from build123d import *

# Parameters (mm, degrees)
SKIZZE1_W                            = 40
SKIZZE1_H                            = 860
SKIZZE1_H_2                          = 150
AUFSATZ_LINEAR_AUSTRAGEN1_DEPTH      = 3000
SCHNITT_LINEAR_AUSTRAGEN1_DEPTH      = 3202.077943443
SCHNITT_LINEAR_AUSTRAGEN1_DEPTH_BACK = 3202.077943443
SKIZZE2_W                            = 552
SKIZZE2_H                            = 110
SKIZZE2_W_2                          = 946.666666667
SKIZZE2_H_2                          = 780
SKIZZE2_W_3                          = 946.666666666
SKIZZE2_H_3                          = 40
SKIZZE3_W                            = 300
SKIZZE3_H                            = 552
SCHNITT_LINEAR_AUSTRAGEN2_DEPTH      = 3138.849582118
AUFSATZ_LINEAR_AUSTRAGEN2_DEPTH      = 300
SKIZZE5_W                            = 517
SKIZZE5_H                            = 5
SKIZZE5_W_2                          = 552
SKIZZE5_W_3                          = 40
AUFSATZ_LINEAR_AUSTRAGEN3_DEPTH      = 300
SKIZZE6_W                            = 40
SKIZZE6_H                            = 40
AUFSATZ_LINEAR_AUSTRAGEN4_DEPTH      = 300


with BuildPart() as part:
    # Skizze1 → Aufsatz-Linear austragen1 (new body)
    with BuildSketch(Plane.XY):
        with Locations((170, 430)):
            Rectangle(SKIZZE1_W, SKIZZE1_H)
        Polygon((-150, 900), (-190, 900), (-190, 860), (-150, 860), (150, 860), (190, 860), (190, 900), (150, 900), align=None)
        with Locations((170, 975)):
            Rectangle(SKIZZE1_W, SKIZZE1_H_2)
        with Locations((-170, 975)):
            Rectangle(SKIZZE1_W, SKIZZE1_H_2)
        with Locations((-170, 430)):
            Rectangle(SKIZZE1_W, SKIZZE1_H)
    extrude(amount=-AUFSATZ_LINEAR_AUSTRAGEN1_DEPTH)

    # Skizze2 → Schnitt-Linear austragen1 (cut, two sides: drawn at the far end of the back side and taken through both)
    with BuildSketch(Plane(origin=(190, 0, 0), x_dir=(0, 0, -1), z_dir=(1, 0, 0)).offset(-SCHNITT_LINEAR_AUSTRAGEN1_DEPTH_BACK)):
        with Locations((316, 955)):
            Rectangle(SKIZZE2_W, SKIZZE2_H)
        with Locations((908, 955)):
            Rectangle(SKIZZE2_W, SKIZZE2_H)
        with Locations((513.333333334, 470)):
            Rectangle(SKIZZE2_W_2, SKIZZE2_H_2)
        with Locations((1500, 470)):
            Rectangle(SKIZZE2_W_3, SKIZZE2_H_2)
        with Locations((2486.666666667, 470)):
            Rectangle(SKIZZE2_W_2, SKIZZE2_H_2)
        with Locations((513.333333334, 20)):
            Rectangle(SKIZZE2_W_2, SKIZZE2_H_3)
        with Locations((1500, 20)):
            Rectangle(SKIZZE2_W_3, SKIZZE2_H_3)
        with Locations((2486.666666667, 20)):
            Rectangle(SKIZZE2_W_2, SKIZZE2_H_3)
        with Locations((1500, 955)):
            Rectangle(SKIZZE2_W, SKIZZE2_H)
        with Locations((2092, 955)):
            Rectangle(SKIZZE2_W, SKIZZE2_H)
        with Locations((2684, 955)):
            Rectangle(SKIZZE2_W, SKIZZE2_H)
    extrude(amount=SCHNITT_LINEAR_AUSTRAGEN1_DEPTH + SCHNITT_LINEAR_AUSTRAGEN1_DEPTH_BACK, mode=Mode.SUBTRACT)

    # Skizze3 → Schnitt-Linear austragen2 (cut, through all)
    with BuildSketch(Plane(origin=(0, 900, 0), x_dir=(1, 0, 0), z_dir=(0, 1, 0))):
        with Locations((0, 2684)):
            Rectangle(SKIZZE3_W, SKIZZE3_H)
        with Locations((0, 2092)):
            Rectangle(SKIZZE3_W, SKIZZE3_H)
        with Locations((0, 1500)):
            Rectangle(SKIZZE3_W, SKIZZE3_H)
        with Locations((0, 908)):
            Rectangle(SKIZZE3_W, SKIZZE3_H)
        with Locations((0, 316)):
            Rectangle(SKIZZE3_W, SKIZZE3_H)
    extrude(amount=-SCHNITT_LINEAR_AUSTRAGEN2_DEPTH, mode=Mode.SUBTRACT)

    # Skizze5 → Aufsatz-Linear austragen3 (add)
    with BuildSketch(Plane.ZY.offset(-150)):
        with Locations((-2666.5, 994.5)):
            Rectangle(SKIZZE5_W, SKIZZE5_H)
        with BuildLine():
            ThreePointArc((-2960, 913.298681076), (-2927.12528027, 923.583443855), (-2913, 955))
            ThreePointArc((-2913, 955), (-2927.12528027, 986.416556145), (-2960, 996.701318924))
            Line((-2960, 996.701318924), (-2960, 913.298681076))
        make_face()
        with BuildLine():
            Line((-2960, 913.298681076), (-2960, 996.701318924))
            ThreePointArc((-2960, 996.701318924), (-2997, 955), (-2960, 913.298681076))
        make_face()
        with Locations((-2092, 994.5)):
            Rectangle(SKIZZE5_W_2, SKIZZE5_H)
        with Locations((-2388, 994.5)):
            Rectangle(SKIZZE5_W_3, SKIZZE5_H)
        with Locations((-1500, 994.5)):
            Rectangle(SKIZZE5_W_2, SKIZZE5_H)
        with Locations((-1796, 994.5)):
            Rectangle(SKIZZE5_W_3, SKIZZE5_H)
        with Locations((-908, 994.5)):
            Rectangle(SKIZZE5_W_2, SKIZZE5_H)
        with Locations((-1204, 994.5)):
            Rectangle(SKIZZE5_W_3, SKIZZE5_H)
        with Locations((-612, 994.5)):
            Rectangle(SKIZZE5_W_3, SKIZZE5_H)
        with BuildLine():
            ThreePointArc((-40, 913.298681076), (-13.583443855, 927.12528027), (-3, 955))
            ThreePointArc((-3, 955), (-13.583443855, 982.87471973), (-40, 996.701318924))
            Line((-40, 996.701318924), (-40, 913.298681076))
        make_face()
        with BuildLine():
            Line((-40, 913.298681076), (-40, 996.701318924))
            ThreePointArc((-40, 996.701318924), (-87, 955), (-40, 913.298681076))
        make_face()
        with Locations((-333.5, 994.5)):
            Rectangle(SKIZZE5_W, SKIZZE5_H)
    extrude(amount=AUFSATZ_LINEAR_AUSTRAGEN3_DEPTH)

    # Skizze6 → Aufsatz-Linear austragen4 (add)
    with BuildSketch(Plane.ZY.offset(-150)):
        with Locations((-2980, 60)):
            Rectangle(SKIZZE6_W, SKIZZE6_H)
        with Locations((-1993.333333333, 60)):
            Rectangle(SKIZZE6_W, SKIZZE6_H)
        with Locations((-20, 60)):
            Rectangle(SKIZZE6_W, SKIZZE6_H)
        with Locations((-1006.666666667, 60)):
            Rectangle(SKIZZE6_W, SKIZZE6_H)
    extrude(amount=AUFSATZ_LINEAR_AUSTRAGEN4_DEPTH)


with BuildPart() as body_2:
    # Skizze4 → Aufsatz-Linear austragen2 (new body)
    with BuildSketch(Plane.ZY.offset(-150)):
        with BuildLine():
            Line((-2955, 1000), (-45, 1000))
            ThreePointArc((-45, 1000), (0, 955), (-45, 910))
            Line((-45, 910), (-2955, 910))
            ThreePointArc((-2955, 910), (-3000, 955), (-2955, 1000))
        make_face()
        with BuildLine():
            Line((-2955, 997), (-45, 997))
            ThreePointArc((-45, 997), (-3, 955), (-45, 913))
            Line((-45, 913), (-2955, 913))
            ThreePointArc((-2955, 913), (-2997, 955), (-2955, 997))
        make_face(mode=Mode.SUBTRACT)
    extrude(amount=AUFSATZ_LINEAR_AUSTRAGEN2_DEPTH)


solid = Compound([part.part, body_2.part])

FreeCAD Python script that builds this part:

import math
import FreeCAD as App
import Part
import Sketcher

V = App.Vector

doc = App.newDocument("Part")
body = doc.addObject("PartDesign::Body", "Body")

sketch1 = body.newObject("Sketcher::SketchObject", "Sketch")
sketch1.AttachmentSupport = (doc.getObject("XY_Plane"), [""])
sketch1.MapMode = "FlatFace"
sketch1.addGeometry(Part.LineSegment(V(150, 860, 0), V(150, 0, 0)), False)
sketch1.addGeometry(Part.LineSegment(V(150, 0, 0), V(190, 0, 0)), False)
sketch1.addGeometry(Part.LineSegment(V(190, 0, 0), V(190, 1050, 0)), False)
sketch1.addGeometry(Part.LineSegment(V(190, 1050, 0), V(150, 1050, 0)), False)
sketch1.addGeometry(Part.LineSegment(V(150, 1050, 0), V(150, 900, 0)), False)
sketch1.addGeometry(Part.LineSegment(V(150, 900, 0), V(-150, 900, 0)), False)
sketch1.addGeometry(Part.LineSegment(V(-150, 900, 0), V(-150, 1050, 0)), False)
sketch1.addGeometry(Part.LineSegment(V(-150, 1050, 0), V(-190, 1050, 0)), False)
sketch1.addGeometry(Part.LineSegment(V(-190, 1050, 0), V(-190, 0, 0)), False)
sketch1.addGeometry(Part.LineSegment(V(-190, 0, 0), V(-150, 0, 0)), False)
sketch1.addGeometry(Part.LineSegment(V(-150, 0, 0), V(-150, 860, 0)), False)
sketch1.addGeometry(Part.LineSegment(V(-150, 860, 0), V(150, 860, 0)), False)
sketch1.addConstraint(Sketcher.Constraint("Coincident", 0, 2, 1, 1))
sketch1.addConstraint(Sketcher.Constraint("Coincident", 1, 2, 2, 1))
sketch1.addConstraint(Sketcher.Constraint("Coincident", 2, 2, 3, 1))
sketch1.addConstraint(Sketcher.Constraint("Coincident", 3, 2, 4, 1))
sketch1.addConstraint(Sketcher.Constraint("Coincident", 4, 2, 5, 1))
sketch1.addConstraint(Sketcher.Constraint("Coincident", 5, 2, 6, 1))
sketch1.addConstraint(Sketcher.Constraint("Coincident", 6, 2, 7, 1))
sketch1.addConstraint(Sketcher.Constraint("Coincident", 7, 2, 8, 1))
sketch1.addConstraint(Sketcher.Constraint("Coincident", 8, 2, 9, 1))
sketch1.addConstraint(Sketcher.Constraint("Coincident", 9, 2, 10, 1))
sketch1.addConstraint(Sketcher.Constraint("Coincident", 10, 2, 11, 1))
sketch1.addConstraint(Sketcher.Constraint("Coincident", 11, 2, 0, 1))
sketch1.addConstraint(Sketcher.Constraint("Vertical", 0))
sketch1.addConstraint(Sketcher.Constraint("Horizontal", 1))
sketch1.addConstraint(Sketcher.Constraint("Vertical", 2))
sketch1.addConstraint(Sketcher.Constraint("Horizontal", 3))
sketch1.addConstraint(Sketcher.Constraint("Vertical", 4))
sketch1.addConstraint(Sketcher.Constraint("Horizontal", 5))
sketch1.addConstraint(Sketcher.Constraint("Vertical", 6))
sketch1.addConstraint(Sketcher.Constraint("Horizontal", 7))
sketch1.addConstraint(Sketcher.Constraint("Vertical", 8))
sketch1.addConstraint(Sketcher.Constraint("Horizontal", 9))
sketch1.addConstraint(Sketcher.Constraint("Vertical", 10))
sketch1.addConstraint(Sketcher.Constraint("Horizontal", 11))
sketch1.addConstraint(Sketcher.Constraint("Symmetric", 1, 2, 8, 2, -1, 1))
sketch1.addConstraint(Sketcher.Constraint("Symmetric", 3, 2, 6, 2, -2))
sketch1.addConstraint(Sketcher.Constraint("Symmetric", 0, 2, 9, 2, -2))
sketch1.addConstraint(Sketcher.Constraint("Vertical", 0, 2, 3, 2))
sketch1.addConstraint(Sketcher.Constraint("DistanceX", 1, 1, 1, 2, 40.0))
sketch1.addConstraint(Sketcher.Constraint("DistanceX", 5, 2, 5, 1, 300.0))
sketch1.addConstraint(Sketcher.Constraint("DistanceY", 0, 2, 0, 1, 860.0))
sketch1.addConstraint(Sketcher.Constraint("DistanceY", 2, 1, 2, 2, 1050.0))
sketch1.addConstraint(Sketcher.Constraint("DistanceY", 4, 2, 4, 1, 150.0))
pad1 = body.newObject("PartDesign::Pad", "Pad")
pad1.Profile = sketch1
pad1.Length = 3000
pad1.Reversed = True

sketch2 = body.newObject("Sketcher::SketchObject", "Sketch001")
sketch2.AttachmentSupport = (doc.getObject("YZ_Plane"), [""])
sketch2.MapMode = "FlatFace"
sketch2.AttachmentOffset = App.Placement(V(0, 0, 190), App.Rotation())
sketch2.addGeometry(Part.LineSegment(V(1010, -40, 0), V(900, -40, 0)), False)
sketch2.addGeometry(Part.LineSegment(V(900, -40, 0), V(900, -592, 0)), False)
sketch2.addGeometry(Part.LineSegment(V(900, -592, 0), V(1010, -592, 0)), False)
sketch2.addGeometry(Part.LineSegment(V(1010, -592, 0), V(1010, -40, 0)), False)
sketch2.addGeometry(Part.LineSegment(V(1010, -632, 0), V(900, -632, 0)), False)
sketch2.addGeometry(Part.LineSegment(V(900, -632, 0), V(900, -1184, 0)), False)
sketch2.addGeometry(Part.LineSegment(V(900, -1184, 0), V(1010, -1184, 0)), False)
sketch2.addGeometry(Part.LineSegment(V(1010, -1184, 0), V(1010, -632, 0)), False)
sketch2.addGeometry(Part.LineSegment(V(860, -40, 0), V(80, -40, 0)), False)
sketch2.addGeometry(Part.LineSegment(V(80, -40, 0), V(80, -987, 0)), False)
sketch2.addGeometry(Part.LineSegment(V(80, -987, 0), V(860, -987, 0)), False)
sketch2.addGeometry(Part.LineSegment(V(860, -987, 0), V(860, -40, 0)), False)
sketch2.addGeometry(Part.LineSegment(V(860, -1027, 0), V(80, -1027, 0)), False)
sketch2.addGeometry(Part.LineSegment(V(80, -1027, 0), V(80, -1973, 0)), False)
sketch2.addGeometry(Part.LineSegment(V(80, -1973, 0), V(860, -1973, 0)), False)
sketch2.addGeometry(Part.LineSegment(V(860, -1973, 0), V(860, -1027, 0)), False)
sketch2.addGeometry(Part.LineSegment(V(860, -2013, 0), V(80, -2013, 0)), False)
sketch2.addGeometry(Part.LineSegment(V(80, -2013, 0), V(80, -2960, 0)), False)
sketch2.addGeometry(Part.LineSegment(V(80, -2960, 0), V(860, -2960, 0)), False)
sketch2.addGeometry(Part.LineSegment(V(860, -2960, 0), V(860, -2013, 0)), False)
sketch2.addGeometry(Part.LineSegment(V(40, -40, 0), V(0, -40, 0)), False)
sketch2.addGeometry(Part.LineSegment(V(0, -40, 0), V(0, -987, 0)), False)
sketch2.addGeometry(Part.LineSegment(V(0, -987, 0), V(40, -987, 0)), False)
sketch2.addGeometry(Part.LineSegment(V(40, -987, 0), V(40, -40, 0)), False)
sketch2.addGeometry(Part.LineSegment(V(40, -1027, 0), V(0, -1027, 0)), False)
sketch2.addGeometry(Part.LineSegment(V(0, -1027, 0), V(0, -1973, 0)), False)
sketch2.addGeometry(Part.LineSegment(V(0, -1973, 0), V(40, -1973, 0)), False)
sketch2.addGeometry(Part.LineSegment(V(40, -1973, 0), V(40, -1027, 0)), False)
sketch2.addGeometry(Part.LineSegment(V(40, -2013, 0), V(0, -2013, 0)), False)
sketch2.addGeometry(Part.LineSegment(V(0, -2013, 0), V(0, -2960, 0)), False)
sketch2.addGeometry(Part.LineSegment(V(0, -2960, 0), V(40, -2960, 0)), False)
sketch2.addGeometry(Part.LineSegment(V(40, -2960, 0), V(40, -2013, 0)), False)
sketch2.addGeometry(Part.LineSegment(V(1010, -1224, 0), V(900, -1224, 0)), False)
sketch2.addGeometry(Part.LineSegment(V(900, -1224, 0), V(900, -1776, 0)), False)
sketch2.addGeometry(Part.LineSegment(V(900, -1776, 0), V(1010, -1776, 0)), False)
sketch2.addGeometry(Part.LineSegment(V(1010, -1776, 0), V(1010, -1224, 0)), False)
sketch2.addGeometry(Part.LineSegment(V(1010, -1816, 0), V(900, -1816, 0)), False)
sketch2.addGeometry(Part.LineSegment(V(900, -1816, 0), V(900, -2368, 0)), False)
sketch2.addGeometry(Part.LineSegment(V(900, -2368, 0), V(1010, -2368, 0)), False)
sketch2.addGeometry(Part.LineSegment(V(1010, -2368, 0), V(1010, -1816, 0)), False)
sketch2.addGeometry(Part.LineSegment(V(1010, -2408, 0), V(900, -2408, 0)), False)
sketch2.addGeometry(Part.LineSegment(V(900, -2408, 0), V(900, -2960, 0)), False)
sketch2.addGeometry(Part.LineSegment(V(900, -2960, 0), V(1010, -2960, 0)), False)
sketch2.addGeometry(Part.LineSegment(V(1010, -2960, 0), V(1010, -2408, 0)), False)
sketch2.addConstraint(Sketcher.Constraint("Coincident", 0, 2, 1, 1))
sketch2.addConstraint(Sketcher.Constraint("Coincident", 1, 2, 2, 1))
sketch2.addConstraint(Sketcher.Constraint("Coincident", 2, 2, 3, 1))
sketch2.addConstraint(Sketcher.Constraint("Coincident", 3, 2, 0, 1))
sketch2.addConstraint(Sketcher.Constraint("Coincident", 4, 2, 5, 1))
sketch2.addConstraint(Sketcher.Constraint("Coincident", 5, 2, 6, 1))
sketch2.addConstraint(Sketcher.Constraint("Coincident", 6, 2, 7, 1))
sketch2.addConstraint(Sketcher.Constraint("Coincident", 7, 2, 4, 1))
sketch2.addConstraint(Sketcher.Constraint("Coincident", 8, 2, 9, 1))
sketch2.addConstraint(Sketcher.Constraint("Coincident", 9, 2, 10, 1))
sketch2.addConstraint(Sketcher.Constraint("Coincident", 10, 2, 11, 1))
sketch2.addConstraint(Sketcher.Constraint("Coincident", 11, 2, 8, 1))
sketch2.addConstraint(Sketcher.Constraint("Coincident", 12, 2, 13, 1))
sketch2.addConstraint(Sketcher.Constraint("Coincident", 13, 2, 14, 1))
sketch2.addConstraint(Sketcher.Constraint("Coincident", 14, 2, 15, 1))
sketch2.addConstraint(Sketcher.Constraint("Coincident", 15, 2, 12, 1))
sketch2.addConstraint(Sketcher.Constraint("Coincident", 16, 2, 17, 1))
sketch2.addConstraint(Sketcher.Constraint("Coincident", 17, 2, 18, 1))
sketch2.addConstraint(Sketcher.Constraint("Coincident", 18, 2, 19, 1))
sketch2.addConstraint(Sketcher.Constraint("Coincident", 19, 2, 16, 1))
sketch2.addConstraint(Sketcher.Constraint("Coincident", 20, 2, 21, 1))
sketch2.addConstraint(Sketcher.Constraint("Coincident", 21, 2, 22, 1))
sketch2.addConstraint(Sketcher.Constraint("Coincident", 22, 2, 23, 1))
sketch2.addConstraint(Sketcher.Constraint("Coincident", 23, 2, 20, 1))
sketch2.addConstraint(Sketcher.Constraint("Coincident", 24, 2, 25, 1))
sketch2.addConstraint(Sketcher.Constraint("Coincident", 25, 2, 26, 1))
sketch2.addConstraint(Sketcher.Constraint("Coincident", 26, 2, 27, 1))
sketch2.addConstraint(Sketcher.Constraint("Coincident", 27, 2, 24, 1))
sketch2.addConstraint(Sketcher.Constraint("Coincident", 28, 2, 29, 1))
sketch2.addConstraint(Sketcher.Constraint("Coincident", 29, 2, 30, 1))
sketch2.addConstraint(Sketcher.Constraint("Coincident", 30, 2, 31, 1))
sketch2.addConstraint(Sketcher.Constraint("Coincident", 31, 2, 28, 1))
sketch2.addConstraint(Sketcher.Constraint("Coincident", 32, 2, 33, 1))
sketch2.addConstraint(Sketcher.Constraint("Coincident", 33, 2, 34, 1))
sketch2.addConstraint(Sketcher.Constraint("Coincident", 34, 2, 35, 1))
sketch2.addConstraint(Sketcher.Constraint("Coincident", 35, 2, 32, 1))
sketch2.addConstraint(Sketcher.Constraint("Coincident", 36, 2, 37, 1))
sketch2.addConstraint(Sketcher.Constraint("Coincident", 37, 2, 38, 1))
sketch2.addConstraint(Sketcher.Constraint("Coincident", 38, 2, 39, 1))
sketch2.addConstraint(Sketcher.Constraint("Coincident", 39, 2, 36, 1))
sketch2.addConstraint(Sketcher.Constraint("Coincident", 40, 2, 41, 1))
sketch2.addConstraint(Sketcher.Constraint("Coincident", 41, 2, 42, 1))
sketch2.addConstraint(Sketcher.Constraint("Coincident", 42, 2, 43, 1))
sketch2.addConstraint(Sketcher.Constraint("Coincident", 43, 2, 40, 1))
sketch2.addConstraint(Sketcher.Constraint("Horizontal", 0))
sketch2.addConstraint(Sketcher.Constraint("Vertical", 1))
sketch2.addConstraint(Sketcher.Constraint("Horizontal", 2))
sketch2.addConstraint(Sketcher.Constraint("Vertical", 3))
sketch2.addConstraint(Sketcher.Constraint("Horizontal", 4))
sketch2.addConstraint(Sketcher.Constraint("Vertical", 5))
sketch2.addConstraint(Sketcher.Constraint("Horizontal", 6))
sketch2.addConstraint(Sketcher.Constraint("Vertical", 7))
sketch2.addConstraint(Sketcher.Constraint("Horizontal", 8))
sketch2.addConstraint(Sketcher.Constraint("Vertical", 9))
sketch2.addConstraint(Sketcher.Constraint("Horizontal", 10))
sketch2.addConstraint(Sketcher.Constraint("Vertical", 11))
sketch2.addConstraint(Sketcher.Constraint("Horizontal", 12))
sketch2.addConstraint(Sketcher.Constraint("Vertical", 13))
sketch2.addConstraint(Sketcher.Constraint("Horizontal", 14))
sketch2.addConstraint(Sketcher.Constraint("Vertical", 15))
sketch2.addConstraint(Sketcher.Constraint("Horizontal", 16))
sketch2.addConstraint(Sketcher.Constraint("Vertical", 17))
sketch2.addConstraint(Sketcher.Constraint("Horizontal", 18))
sketch2.addConstraint(Sketcher.Constraint("Vertical", 19))
sketch2.addConstraint(Sketcher.Constraint("Horizontal", 20))
sketch2.addConstraint(Sketcher.Constraint("Vertical", 21))
sketch2.addConstraint(Sketcher.Constraint("Horizontal", 22))
sketch2.addConstraint(Sketcher.Constraint("Vertical", 23))
sketch2.addConstraint(Sketcher.Constraint("Horizontal", 24))
sketch2.addConstraint(Sketcher.Constraint("Vertical", 25))
sketch2.addConstraint(Sketcher.Constraint("Horizontal", 26))
sketch2.addConstraint(Sketcher.Constraint("Vertical", 27))
sketch2.addConstraint(Sketcher.Constraint("Horizontal", 28))
sketch2.addConstraint(Sketcher.Constraint("Vertical", 29))
sketch2.addConstraint(Sketcher.Constraint("Horizontal", 30))
sketch2.addConstraint(Sketcher.Constraint("Vertical", 31))
sketch2.addConstraint(Sketcher.Constraint("Horizontal", 32))
sketch2.addConstraint(Sketcher.Constraint("Vertical", 33))
sketch2.addConstraint(Sketcher.Constraint("Horizontal", 34))
sketch2.addConstraint(Sketcher.Constraint("Vertical", 35))
sketch2.addConstraint(Sketcher.Constraint("Horizontal", 36))
sketch2.addConstraint(Sketcher.Constraint("Vertical", 37))
sketch2.addConstraint(Sketcher.Constraint("Horizontal", 38))
sketch2.addConstraint(Sketcher.Constraint("Vertical", 39))
sketch2.addConstraint(Sketcher.Constraint("Horizontal", 40))
sketch2.addConstraint(Sketcher.Constraint("Vertical", 41))
sketch2.addConstraint(Sketcher.Constraint("Horizontal", 42))
sketch2.addConstraint(Sketcher.Constraint("Vertical", 43))
sketch2.addConstraint(Sketcher.Constraint("PointOnObject", 20, 2, -2))
sketch2.addConstraint(Sketcher.Constraint("PointOnObject", 24, 2, -2))
sketch2.addConstraint(Sketcher.Constraint("PointOnObject", 28, 2, -2))
sketch2.addConstraint(Sketcher.Constraint("Horizontal", 3, 2, 8, 2))
sketch2.addConstraint(Sketcher.Constraint("Horizontal", 11, 2, 20, 2))
sketch2.addConstraint(Sketcher.Constraint("Horizontal", 10, 2, 21, 2))
sketch2.addConstraint(Sketcher.Constraint("Horizontal", 15, 2, 24, 2))
sketch2.addConstraint(Sketcher.Constraint("Horizontal", 14, 2, 25, 2))
sketch2.addConstraint(Sketcher.Constraint("Horizontal", 19, 2, 28, 2))
sketch2.addConstraint(Sketcher.Constraint("Horizontal", 18, 2, 29, 2))
sketch2.addConstraint(Sketcher.Constraint("Horizontal", 30, 2, 41, 2))
sketch2.addConstraint(Sketcher.Constraint("Vertical", 1, 2, 4, 2))
sketch2.addConstraint(Sketcher.Constraint("Vertical", 3, 2, 6, 2))
sketch2.addConstraint(Sketcher.Constraint("Vertical", 9, 2, 12, 2))
sketch2.addConstraint(Sketcher.Constraint("Vertical", 11, 2, 14, 2))
sketch2.addConstraint(Sketcher.Constraint("Vertical", 13, 2, 16, 2))
sketch2.addConstraint(Sketcher.Constraint("Vertical", 15, 2, 18, 2))
sketch2.addConstraint(Sketcher.Constraint("Vertical", 23, 2, 26, 2))
sketch2.addConstraint(Sketcher.Constraint("Vertical", 27, 2, 30, 2))
sketch2.addConstraint(Sketcher.Constraint("Vertical", 5, 2, 32, 2))
sketch2.addConstraint(Sketcher.Constraint("Vertical", 7, 2, 34, 2))
sketch2.addConstraint(Sketcher.Constraint("Vertical", 33, 2, 36, 2))
sketch2.addConstraint(Sketcher.Constraint("Vertical", 35, 2, 38, 2))
sketch2.addConstraint(Sketcher.Constraint("Vertical", 37, 2, 40, 2))
sketch2.addConstraint(Sketcher.Constraint("Vertical", 39, 2, 42, 2))
sketch2.addConstraint(Sketcher.Constraint("Equal", 3, 5))
sketch2.addConstraint(Sketcher.Constraint("Equal", 11, 13))
sketch2.addConstraint(Sketcher.Constraint("Equal", 15, 17))
sketch2.addConstraint(Sketcher.Constraint("Equal", 7, 33))
sketch2.addConstraint(Sketcher.Constraint("Equal", 35, 37))
sketch2.addConstraint(Sketcher.Constraint("Equal", 39, 41))
sketch2.addConstraint(Sketcher.Constraint("DistanceX", 0, 2, 0, 1, 110.0))
sketch2.addConstraint(Sketcher.Constraint("DistanceX", 8, 2, 8, 1, 780.0))
sketch2.addConstraint(Sketcher.Constraint("DistanceX", 20, 2, 20, 1, 40.0))
sketch2.addConstraint(Sketcher.Constraint("DistanceY", 1, 2, 1, 1, 552.0))
sketch2.addConstraint(Sketcher.Constraint("DistanceX", -1, 1, 0, 2, 900.0))
sketch2.addConstraint(Sketcher.Constraint("DistanceY", 0, 2, -1, 1, 40.0))
sketch2.addConstraint(Sketcher.Constraint("DistanceY", 4, 2, -1, 1, 632.0))
sketch2.addConstraint(Sketcher.Constraint("DistanceX", -1, 1, 8, 2, 80.0))
sketch2.addConstraint(Sketcher.Constraint("DistanceY", 17, 2, -1, 1, 2960.0))
sketch2.addConstraint(Sketcher.Constraint("DistanceY", 32, 2, -1, 1, 1224.0))
sketch2.addConstraint(Sketcher.Constraint("DistanceY", 36, 2, -1, 1, 1816.0))
sketch2.addConstraint(Sketcher.Constraint("DistanceY", 12, 2, 9, 2, 40.0))
sketch2.addConstraint(Sketcher.Constraint("DistanceY", 16, 2, 13, 2, 40.0))
pocket1 = body.newObject("PartDesign::Pocket", "Pocket")
pocket1.Profile = sketch2
pocket1.Type = "ThroughAll"
pocket1.Midplane = True

sketch3 = body.newObject("Sketcher::SketchObject", "Sketch002")
sketch3.AttachmentSupport = (doc.getObject("XZ_Plane"), [""])
sketch3.MapMode = "FlatFace"
sketch3.AttachmentOffset = App.Placement(V(0, 0, -900), App.Rotation())
sketch3.addGeometry(Part.LineSegment(V(-150, -2960, 0), V(-150, -2408, 0)), False)
sketch3.addGeometry(Part.LineSegment(V(-150, -2408, 0), V(150, -2408, 0)), False)
sketch3.addGeometry(Part.LineSegment(V(150, -2408, 0), V(150, -2960, 0)), False)
sketch3.addGeometry(Part.LineSegment(V(150, -2960, 0), V(-150, -2960, 0)), False)
sketch3.addGeometry(Part.LineSegment(V(-150, -2368, 0), V(-150, -1816, 0)), False)
sketch3.addGeometry(Part.LineSegment(V(-150, -1816, 0), V(150, -1816, 0)), False)
sketch3.addGeometry(Part.LineSegment(V(150, -1816, 0), V(150, -2368, 0)), False)
sketch3.addGeometry(Part.LineSegment(V(150, -2368, 0), V(-150, -2368, 0)), False)
sketch3.addGeometry(Part.LineSegment(V(-150, -1776, 0), V(-150, -1224, 0)), False)
sketch3.addGeometry(Part.LineSegment(V(-150, -1224, 0), V(150, -1224, 0)), False)
sketch3.addGeometry(Part.LineSegment(V(150, -1224, 0), V(150, -1776, 0)), False)
sketch3.addGeometry(Part.LineSegment(V(150, -1776, 0), V(-150, -1776, 0)), False)
sketch3.addGeometry(Part.LineSegment(V(-150, -1184, 0), V(-150, -632, 0)), False)
sketch3.addGeometry(Part.LineSegment(V(-150, -632, 0), V(150, -632, 0)), False)
sketch3.addGeometry(Part.LineSegment(V(150, -632, 0), V(150, -1184, 0)), False)
sketch3.addGeometry(Part.LineSegment(V(150, -1184, 0), V(-150, -1184, 0)), False)
sketch3.addGeometry(Part.LineSegment(V(-150, -592, 0), V(-150, -40, 0)), False)
sketch3.addGeometry(Part.LineSegment(V(-150, -40, 0), V(150, -40, 0)), False)
sketch3.addGeometry(Part.LineSegment(V(150, -40, 0), V(150, -592, 0)), False)
sketch3.addGeometry(Part.LineSegment(V(150, -592, 0), V(-150, -592, 0)), False)
sketch3.addConstraint(Sketcher.Constraint("Coincident", 0, 2, 1, 1))
sketch3.addConstraint(Sketcher.Constraint("Coincident", 1, 2, 2, 1))
sketch3.addConstraint(Sketcher.Constraint("Coincident", 2, 2, 3, 1))
sketch3.addConstraint(Sketcher.Constraint("Coincident", 3, 2, 0, 1))
sketch3.addConstraint(Sketcher.Constraint("Coincident", 4, 2, 5, 1))
sketch3.addConstraint(Sketcher.Constraint("Coincident", 5, 2, 6, 1))
sketch3.addConstraint(Sketcher.Constraint("Coincident", 6, 2, 7, 1))
sketch3.addConstraint(Sketcher.Constraint("Coincident", 7, 2, 4, 1))
sketch3.addConstraint(Sketcher.Constraint("Coincident", 8, 2, 9, 1))
sketch3.addConstraint(Sketcher.Constraint("Coincident", 9, 2, 10, 1))
sketch3.addConstraint(Sketcher.Constraint("Coincident", 10, 2, 11, 1))
sketch3.addConstraint(Sketcher.Constraint("Coincident", 11, 2, 8, 1))
sketch3.addConstraint(Sketcher.Constraint("Coincident", 12, 2, 13, 1))
sketch3.addConstraint(Sketcher.Constraint("Coincident", 13, 2, 14, 1))
sketch3.addConstraint(Sketcher.Constraint("Coincident", 14, 2, 15, 1))
sketch3.addConstraint(Sketcher.Constraint("Coincident", 15, 2, 12, 1))
sketch3.addConstraint(Sketcher.Constraint("Coincident", 16, 2, 17, 1))
sketch3.addConstraint(Sketcher.Constraint("Coincident", 17, 2, 18, 1))
sketch3.addConstraint(Sketcher.Constraint("Coincident", 18, 2, 19, 1))
sketch3.addConstraint(Sketcher.Constraint("Coincident", 19, 2, 16, 1))
sketch3.addConstraint(Sketcher.Constraint("Vertical", 0))
sketch3.addConstraint(Sketcher.Constraint("Horizontal", 1))
sketch3.addConstraint(Sketcher.Constraint("Vertical", 2))
sketch3.addConstraint(Sketcher.Constraint("Horizontal", 3))
sketch3.addConstraint(Sketcher.Constraint("Vertical", 4))
sketch3.addConstraint(Sketcher.Constraint("Horizontal", 5))
sketch3.addConstraint(Sketcher.Constraint("Vertical", 6))
sketch3.addConstraint(Sketcher.Constraint("Horizontal", 7))
sketch3.addConstraint(Sketcher.Constraint("Vertical", 8))
sketch3.addConstraint(Sketcher.Constraint("Horizontal", 9))
sketch3.addConstraint(Sketcher.Constraint("Vertical", 10))
sketch3.addConstraint(Sketcher.Constraint("Horizontal", 11))
sketch3.addConstraint(Sketcher.Constraint("Vertical", 12))
sketch3.addConstraint(Sketcher.Constraint("Horizontal", 13))
sketch3.addConstraint(Sketcher.Constraint("Vertical", 14))
sketch3.addConstraint(Sketcher.Constraint("Horizontal", 15))
sketch3.addConstraint(Sketcher.Constraint("Vertical", 16))
sketch3.addConstraint(Sketcher.Constraint("Horizontal", 17))
sketch3.addConstraint(Sketcher.Constraint("Vertical", 18))
sketch3.addConstraint(Sketcher.Constraint("Horizontal", 19))
sketch3.addConstraint(Sketcher.Constraint("Vertical", 3, 2, 4, 2))
sketch3.addConstraint(Sketcher.Constraint("Vertical", 2, 2, 5, 2))
sketch3.addConstraint(Sketcher.Constraint("Vertical", 7, 2, 8, 2))
sketch3.addConstraint(Sketcher.Constraint("Vertical", 6, 2, 9, 2))
sketch3.addConstraint(Sketcher.Constraint("Vertical", 11, 2, 12, 2))
sketch3.addConstraint(Sketcher.Constraint("Vertical", 10, 2, 13, 2))
sketch3.addConstraint(Sketcher.Constraint("Vertical", 15, 2, 16, 2))
sketch3.addConstraint(Sketcher.Constraint("Vertical", 14, 2, 17, 2))
sketch3.addConstraint(Sketcher.Constraint("Equal", 2, 4))
sketch3.addConstraint(Sketcher.Constraint("Equal", 6, 8))
sketch3.addConstraint(Sketcher.Constraint("Equal", 10, 12))
sketch3.addConstraint(Sketcher.Constraint("Equal", 14, 16))
sketch3.addConstraint(Sketcher.Constraint("DistanceX", 1, 1, 1, 2, 300.0))
sketch3.addConstraint(Sketcher.Constraint("DistanceY", 0, 1, 0, 2, 552.0))
sketch3.addConstraint(Sketcher.Constraint("DistanceX", 0, 2, -1, 1, 150.0))
sketch3.addConstraint(Sketcher.Constraint("DistanceY", 0, 2, -1, 1, 2408.0))
sketch3.addConstraint(Sketcher.Constraint("DistanceY", 4, 2, -1, 1, 1816.0))
sketch3.addConstraint(Sketcher.Constraint("DistanceY", 8, 2, -1, 1, 1224.0))
sketch3.addConstraint(Sketcher.Constraint("DistanceY", 12, 2, -1, 1, 632.0))
sketch3.addConstraint(Sketcher.Constraint("DistanceY", 16, 2, -1, 1, 40.0))
pocket2 = body.newObject("PartDesign::Pocket", "Pocket001")
pocket2.Profile = sketch3
pocket2.Type = "ThroughAll"
pocket2.Reversed = True

sketch4 = body.newObject("Sketcher::SketchObject", "Sketch003")
sketch4.AttachmentSupport = (doc.getObject("YZ_Plane"), [""])
sketch4.MapMode = "FlatFace"
sketch4.AttachmentOffset = App.Placement(V(0, 0, 150), App.Rotation())
sketch4.addGeometry(Part.LineSegment(V(997, -2925, 0), V(992, -2925, 0)), False)
sketch4.addGeometry(Part.LineSegment(V(992, -2925, 0), V(992, -75, 0)), False)
sketch4.addGeometry(Part.LineSegment(V(992, -75, 0), V(997, -75, 0)), False)
sketch4.addGeometry(Part.LineSegment(V(997, -75, 0), V(997, -2925, 0)), False)
sketch4.addGeometry(Part.ArcOfCircle(Part.Circle(V(955, -2955, 0), V(0, 0, 1), 42), math.radians(90), math.radians(187)), False)
sketch4.addGeometry(Part.ArcOfCircle(Part.Circle(V(955, -2955, 0), V(0, 0, 1), 42), math.radians(-7), math.radians(90)), False)
sketch4.addGeometry(Part.ArcOfCircle(Part.Circle(V(955, -2955, 0), V(0, 0, 1), 42), math.radians(-173), math.radians(-7)), False)
sketch4.addGeometry(Part.ArcOfCircle(Part.Circle(V(955, -45, 0), V(0, 0, 1), 42), math.radians(90), math.radians(173)), False)
sketch4.addGeometry(Part.ArcOfCircle(Part.Circle(V(955, -45, 0), V(0, 0, 1), 42), math.radians(7), math.radians(90)), False)
sketch4.addGeometry(Part.ArcOfCircle(Part.Circle(V(955, -45, 0), V(0, 0, 1), 42), math.radians(173), math.radians(367)), False)
sketch4.addConstraint(Sketcher.Constraint("Coincident", 0, 2, 1, 1))
sketch4.addConstraint(Sketcher.Constraint("Coincident", 1, 2, 2, 1))
sketch4.addConstraint(Sketcher.Constraint("Coincident", 2, 2, 3, 1))
sketch4.addConstraint(Sketcher.Constraint("Coincident", 3, 2, 0, 1))
sketch4.addConstraint(Sketcher.Constraint("Tangent", 4, 1, 5, 2))
sketch4.addConstraint(Sketcher.Constraint("Tangent", 5, 1, 6, 2))
sketch4.addConstraint(Sketcher.Constraint("Tangent", 6, 1, 4, 2))
sketch4.addConstraint(Sketcher.Constraint("Tangent", 7, 1, 8, 2))
sketch4.addConstraint(Sketcher.Constraint("Tangent", 8, 1, 9, 2))
sketch4.addConstraint(Sketcher.Constraint("Tangent", 9, 1, 7, 2))
sketch4.addConstraint(Sketcher.Constraint("Horizontal", 0))
sketch4.addConstraint(Sketcher.Constraint("Vertical", 1))
sketch4.addConstraint(Sketcher.Constraint("Horizontal", 2))
sketch4.addConstraint(Sketcher.Constraint("Vertical", 3))
sketch4.addConstraint(Sketcher.Constraint("Equal", 6, 7))
sketch4.addConstraint(Sketcher.Constraint("Horizontal", 5, 1, 6, 1))
sketch4.addConstraint(Sketcher.Constraint("Horizontal", 8, 1, 9, 1))
sketch4.addConstraint(Sketcher.Constraint("Vertical", 6, 3, 7, 3))
sketch4.addConstraint(Sketcher.Constraint("Vertical", 9, 3, 4, 1))
sketch4.addConstraint(Sketcher.Constraint("Vertical", 4, 1, 7, 1))
sketch4.addConstraint(Sketcher.Constraint("Vertical", 5, 1, 8, 1))
sketch4.addConstraint(Sketcher.Constraint("Radius", 4, 42.0))
sketch4.addConstraint(Sketcher.Constraint("DistanceX", 0, 2, 0, 1, 5.0))
sketch4.addConstraint(Sketcher.Constraint("DistanceY", 1, 1, 1, 2, 2850.0))
sketch4.addConstraint(Sketcher.Constraint("DistanceX", -1, 1, 4, 3, 955.0))
sketch4.addConstraint(Sketcher.Constraint("DistanceY", 4, 3, -1, 1, 2955.0))
sketch4.addConstraint(Sketcher.Constraint("DistanceY", 7, 3, -1, 1, 45.0))
sketch4.addConstraint(Sketcher.Constraint("DistanceX", -1, 1, 0, 2, 992.0))
sketch4.addConstraint(Sketcher.Constraint("DistanceY", 0, 2, -1, 1, 2925.0))
sketch4.addConstraint(Sketcher.Constraint("DistanceY", 5, 1, -1, 1, 2960.0))
pad2 = body.newObject("PartDesign::Pad", "Pad001")
pad2.Profile = sketch4
pad2.Length = 300
pad2.Reversed = True

sketch5 = body.newObject("Sketcher::SketchObject", "Sketch004")
sketch5.AttachmentSupport = (doc.getObject("YZ_Plane"), [""])
sketch5.MapMode = "FlatFace"
sketch5.AttachmentOffset = App.Placement(V(0, 0, 150), App.Rotation())
sketch5.addGeometry(Part.LineSegment(V(80, -3000, 0), V(40, -3000, 0)), False)
sketch5.addGeometry(Part.LineSegment(V(40, -3000, 0), V(40, -2960, 0)), False)
sketch5.addGeometry(Part.LineSegment(V(40, -2960, 0), V(80, -2960, 0)), False)
sketch5.addGeometry(Part.LineSegment(V(80, -2960, 0), V(80, -3000, 0)), False)
sketch5.addGeometry(Part.LineSegment(V(80, -2013, 0), V(40, -2013, 0)), False)
sketch5.addGeometry(Part.LineSegment(V(40, -2013, 0), V(40, -1973, 0)), False)
sketch5.addGeometry(Part.LineSegment(V(40, -1973, 0), V(80, -1973, 0)), False)
sketch5.addGeometry(Part.LineSegment(V(80, -1973, 0), V(80, -2013, 0)), False)
sketch5.addGeometry(Part.LineSegment(V(80, -40, 0), V(40, -40, 0)), False)
sketch5.addGeometry(Part.LineSegment(V(40, -40, 0), V(40, 0, 0)), False)
sketch5.addGeometry(Part.LineSegment(V(40, 0, 0), V(80, 0, 0)), False)
sketch5.addGeometry(Part.LineSegment(V(80, 0, 0), V(80, -40, 0)), False)
sketch5.addGeometry(Part.LineSegment(V(80, -1027, 0), V(40, -1027, 0)), False)
sketch5.addGeometry(Part.LineSegment(V(40, -1027, 0), V(40, -987, 0)), False)
sketch5.addGeometry(Part.LineSegment(V(40, -987, 0), V(80, -987, 0)), False)
sketch5.addGeometry(Part.LineSegment(V(80, -987, 0), V(80, -1027, 0)), False)
sketch5.addConstraint(Sketcher.Constraint("Coincident", 0, 2, 1, 1))
sketch5.addConstraint(Sketcher.Constraint("Coincident", 1, 2, 2, 1))
sketch5.addConstraint(Sketcher.Constraint("Coincident", 2, 2, 3, 1))
sketch5.addConstraint(Sketcher.Constraint("Coincident", 3, 2, 0, 1))
sketch5.addConstraint(Sketcher.Constraint("Coincident", 4, 2, 5, 1))
sketch5.addConstraint(Sketcher.Constraint("Coincident", 5, 2, 6, 1))
sketch5.addConstraint(Sketcher.Constraint("Coincident", 6, 2, 7, 1))
sketch5.addConstraint(Sketcher.Constraint("Coincident", 7, 2, 4, 1))
sketch5.addConstraint(Sketcher.Constraint("Coincident", 8, 2, 9, 1))
sketch5.addConstraint(Sketcher.Constraint("Coincident", 9, 2, 10, 1))
sketch5.addConstraint(Sketcher.Constraint("Coincident", 10, 2, 11, 1))
sketch5.addConstraint(Sketcher.Constraint("Coincident", 11, 2, 8, 1))
sketch5.addConstraint(Sketcher.Constraint("Coincident", 12, 2, 13, 1))
sketch5.addConstraint(Sketcher.Constraint("Coincident", 13, 2, 14, 1))
sketch5.addConstraint(Sketcher.Constraint("Coincident", 14, 2, 15, 1))
sketch5.addConstraint(Sketcher.Constraint("Coincident", 15, 2, 12, 1))
sketch5.addConstraint(Sketcher.Constraint("Horizontal", 0))
sketch5.addConstraint(Sketcher.Constraint("Vertical", 1))
sketch5.addConstraint(Sketcher.Constraint("Horizontal", 2))
sketch5.addConstraint(Sketcher.Constraint("Vertical", 3))
sketch5.addConstraint(Sketcher.Constraint("Horizontal", 4))
sketch5.addConstraint(Sketcher.Constraint("Vertical", 5))
sketch5.addConstraint(Sketcher.Constraint("Horizontal", 6))
sketch5.addConstraint(Sketcher.Constraint("Vertical", 7))
sketch5.addConstraint(Sketcher.Constraint("Horizontal", 8))
sketch5.addConstraint(Sketcher.Constraint("Vertical", 9))
sketch5.addConstraint(Sketcher.Constraint("Horizontal", 10))
sketch5.addConstraint(Sketcher.Constraint("Vertical", 11))
sketch5.addConstraint(Sketcher.Constraint("Horizontal", 12))
sketch5.addConstraint(Sketcher.Constraint("Vertical", 13))
sketch5.addConstraint(Sketcher.Constraint("Horizontal", 14))
sketch5.addConstraint(Sketcher.Constraint("Vertical", 15))
sketch5.addConstraint(Sketcher.Constraint("PointOnObject", 9, 2, -1))
sketch5.addConstraint(Sketcher.Constraint("Vertical", 1, 2, 4, 2))
sketch5.addConstraint(Sketcher.Constraint("Vertical", 3, 2, 6, 2))
sketch5.addConstraint(Sketcher.Constraint("Vertical", 5, 2, 8, 2))
sketch5.addConstraint(Sketcher.Constraint("Vertical", 7, 2, 10, 2))
sketch5.addConstraint(Sketcher.Constraint("Vertical", 9, 2, 12, 2))
sketch5.addConstraint(Sketcher.Constraint("Vertical", 11, 2, 14, 2))
sketch5.addConstraint(Sketcher.Constraint("Equal", 14, 1))
sketch5.addConstraint(Sketcher.Constraint("Equal", 3, 5))
sketch5.addConstraint(Sketcher.Constraint("Equal", 7, 9))
sketch5.addConstraint(Sketcher.Constraint("Equal", 11, 13))
sketch5.addConstraint(Sketcher.Constraint("DistanceX", 0, 2, 0, 1, 40.0))
sketch5.addConstraint(Sketcher.Constraint("DistanceX", -1, 1, 0, 2, 40.0))
sketch5.addConstraint(Sketcher.Constraint("DistanceY", 0, 2, -1, 1, 3000.0))
sketch5.addConstraint(Sketcher.Constraint("DistanceY", 4, 2, -1, 1, 2013.333333))
sketch5.addConstraint(Sketcher.Constraint("DistanceY", 12, 2, -1, 1, 1026.666667))
pad3 = body.newObject("PartDesign::Pad", "Pad002")
pad3.Profile = sketch5
pad3.Length = 300
pad3.Reversed = True
body2 = doc.addObject("PartDesign::Body", "Body001")

sketch6 = body2.newObject("Sketcher::SketchObject", "Sketch005")
sketch6.AttachmentSupport = (doc.getObject("YZ_Plane001"), [""])
sketch6.MapMode = "FlatFace"
sketch6.AttachmentOffset = App.Placement(V(0, 0, 150), App.Rotation())
sketch6.addGeometry(Part.LineSegment(V(1000, -45, 0), V(1000, -2955, 0)), False)
sketch6.addGeometry(Part.ArcOfCircle(Part.Circle(V(955, -2955, 0), V(0, 0, 1), 45), math.radians(180), math.radians(360)), False)
sketch6.addGeometry(Part.LineSegment(V(910, -2955, 0), V(910, -45, 0)), False)
sketch6.addGeometry(Part.ArcOfCircle(Part.Circle(V(955, -45, 0), V(0, 0, 1), 45), math.radians(0), math.radians(180)), False)
sketch6.addGeometry(Part.LineSegment(V(997, -2955, 0), V(997, -45, 0)), False)
sketch6.addGeometry(Part.ArcOfCircle(Part.Circle(V(955, -45, 0), V(0, 0, 1), 42), math.radians(0), math.radians(180)), False)
sketch6.addGeometry(Part.LineSegment(V(913, -45, 0), V(913, -2955, 0)), False)
sketch6.addGeometry(Part.ArcOfCircle(Part.Circle(V(955, -2955, 0), V(0, 0, 1), 42), math.radians(180), math.radians(360)), False)
sketch6.addConstraint(Sketcher.Constraint("Tangent", 0, 2, 1, 2))
sketch6.addConstraint(Sketcher.Constraint("Tangent", 1, 1, 2, 1))
sketch6.addConstraint(Sketcher.Constraint("Tangent", 2, 2, 3, 2))
sketch6.addConstraint(Sketcher.Constraint("Tangent", 3, 1, 0, 1))
sketch6.addConstraint(Sketcher.Constraint("Tangent", 4, 2, 5, 1))
sketch6.addConstraint(Sketcher.Constraint("Tangent", 5, 2, 6, 1))
sketch6.addConstraint(Sketcher.Constraint("Tangent", 6, 2, 7, 1))
sketch6.addConstraint(Sketcher.Constraint("Tangent", 7, 2, 4, 1))
sketch6.addConstraint(Sketcher.Constraint("Vertical", 0))
sketch6.addConstraint(Sketcher.Constraint("Vertical", 2))
sketch6.addConstraint(Sketcher.Constraint("Vertical", 4))
sketch6.addConstraint(Sketcher.Constraint("Vertical", 6))
sketch6.addConstraint(Sketcher.Constraint("Coincident", 5, 3, 3, 3))
sketch6.addConstraint(Sketcher.Constraint("Horizontal", 7, 3, 0, 2))
sketch6.addConstraint(Sketcher.Constraint("Radius", 1, 45.0))
sketch6.addConstraint(Sketcher.Constraint("Radius", 5, 42.0))
sketch6.addConstraint(Sketcher.Constraint("DistanceY", 0, 2, 0, 1, 2910.0))
sketch6.addConstraint(Sketcher.Constraint("DistanceX", -1, 1, 1, 3, 955.0))
sketch6.addConstraint(Sketcher.Constraint("DistanceY", 1, 3, -1, 1, 2955.0))
pad4 = body2.newObject("PartDesign::Pad", "Pad003")
pad4.Profile = sketch6
pad4.Length = 300
pad4.Reversed = True

doc.recompute()
